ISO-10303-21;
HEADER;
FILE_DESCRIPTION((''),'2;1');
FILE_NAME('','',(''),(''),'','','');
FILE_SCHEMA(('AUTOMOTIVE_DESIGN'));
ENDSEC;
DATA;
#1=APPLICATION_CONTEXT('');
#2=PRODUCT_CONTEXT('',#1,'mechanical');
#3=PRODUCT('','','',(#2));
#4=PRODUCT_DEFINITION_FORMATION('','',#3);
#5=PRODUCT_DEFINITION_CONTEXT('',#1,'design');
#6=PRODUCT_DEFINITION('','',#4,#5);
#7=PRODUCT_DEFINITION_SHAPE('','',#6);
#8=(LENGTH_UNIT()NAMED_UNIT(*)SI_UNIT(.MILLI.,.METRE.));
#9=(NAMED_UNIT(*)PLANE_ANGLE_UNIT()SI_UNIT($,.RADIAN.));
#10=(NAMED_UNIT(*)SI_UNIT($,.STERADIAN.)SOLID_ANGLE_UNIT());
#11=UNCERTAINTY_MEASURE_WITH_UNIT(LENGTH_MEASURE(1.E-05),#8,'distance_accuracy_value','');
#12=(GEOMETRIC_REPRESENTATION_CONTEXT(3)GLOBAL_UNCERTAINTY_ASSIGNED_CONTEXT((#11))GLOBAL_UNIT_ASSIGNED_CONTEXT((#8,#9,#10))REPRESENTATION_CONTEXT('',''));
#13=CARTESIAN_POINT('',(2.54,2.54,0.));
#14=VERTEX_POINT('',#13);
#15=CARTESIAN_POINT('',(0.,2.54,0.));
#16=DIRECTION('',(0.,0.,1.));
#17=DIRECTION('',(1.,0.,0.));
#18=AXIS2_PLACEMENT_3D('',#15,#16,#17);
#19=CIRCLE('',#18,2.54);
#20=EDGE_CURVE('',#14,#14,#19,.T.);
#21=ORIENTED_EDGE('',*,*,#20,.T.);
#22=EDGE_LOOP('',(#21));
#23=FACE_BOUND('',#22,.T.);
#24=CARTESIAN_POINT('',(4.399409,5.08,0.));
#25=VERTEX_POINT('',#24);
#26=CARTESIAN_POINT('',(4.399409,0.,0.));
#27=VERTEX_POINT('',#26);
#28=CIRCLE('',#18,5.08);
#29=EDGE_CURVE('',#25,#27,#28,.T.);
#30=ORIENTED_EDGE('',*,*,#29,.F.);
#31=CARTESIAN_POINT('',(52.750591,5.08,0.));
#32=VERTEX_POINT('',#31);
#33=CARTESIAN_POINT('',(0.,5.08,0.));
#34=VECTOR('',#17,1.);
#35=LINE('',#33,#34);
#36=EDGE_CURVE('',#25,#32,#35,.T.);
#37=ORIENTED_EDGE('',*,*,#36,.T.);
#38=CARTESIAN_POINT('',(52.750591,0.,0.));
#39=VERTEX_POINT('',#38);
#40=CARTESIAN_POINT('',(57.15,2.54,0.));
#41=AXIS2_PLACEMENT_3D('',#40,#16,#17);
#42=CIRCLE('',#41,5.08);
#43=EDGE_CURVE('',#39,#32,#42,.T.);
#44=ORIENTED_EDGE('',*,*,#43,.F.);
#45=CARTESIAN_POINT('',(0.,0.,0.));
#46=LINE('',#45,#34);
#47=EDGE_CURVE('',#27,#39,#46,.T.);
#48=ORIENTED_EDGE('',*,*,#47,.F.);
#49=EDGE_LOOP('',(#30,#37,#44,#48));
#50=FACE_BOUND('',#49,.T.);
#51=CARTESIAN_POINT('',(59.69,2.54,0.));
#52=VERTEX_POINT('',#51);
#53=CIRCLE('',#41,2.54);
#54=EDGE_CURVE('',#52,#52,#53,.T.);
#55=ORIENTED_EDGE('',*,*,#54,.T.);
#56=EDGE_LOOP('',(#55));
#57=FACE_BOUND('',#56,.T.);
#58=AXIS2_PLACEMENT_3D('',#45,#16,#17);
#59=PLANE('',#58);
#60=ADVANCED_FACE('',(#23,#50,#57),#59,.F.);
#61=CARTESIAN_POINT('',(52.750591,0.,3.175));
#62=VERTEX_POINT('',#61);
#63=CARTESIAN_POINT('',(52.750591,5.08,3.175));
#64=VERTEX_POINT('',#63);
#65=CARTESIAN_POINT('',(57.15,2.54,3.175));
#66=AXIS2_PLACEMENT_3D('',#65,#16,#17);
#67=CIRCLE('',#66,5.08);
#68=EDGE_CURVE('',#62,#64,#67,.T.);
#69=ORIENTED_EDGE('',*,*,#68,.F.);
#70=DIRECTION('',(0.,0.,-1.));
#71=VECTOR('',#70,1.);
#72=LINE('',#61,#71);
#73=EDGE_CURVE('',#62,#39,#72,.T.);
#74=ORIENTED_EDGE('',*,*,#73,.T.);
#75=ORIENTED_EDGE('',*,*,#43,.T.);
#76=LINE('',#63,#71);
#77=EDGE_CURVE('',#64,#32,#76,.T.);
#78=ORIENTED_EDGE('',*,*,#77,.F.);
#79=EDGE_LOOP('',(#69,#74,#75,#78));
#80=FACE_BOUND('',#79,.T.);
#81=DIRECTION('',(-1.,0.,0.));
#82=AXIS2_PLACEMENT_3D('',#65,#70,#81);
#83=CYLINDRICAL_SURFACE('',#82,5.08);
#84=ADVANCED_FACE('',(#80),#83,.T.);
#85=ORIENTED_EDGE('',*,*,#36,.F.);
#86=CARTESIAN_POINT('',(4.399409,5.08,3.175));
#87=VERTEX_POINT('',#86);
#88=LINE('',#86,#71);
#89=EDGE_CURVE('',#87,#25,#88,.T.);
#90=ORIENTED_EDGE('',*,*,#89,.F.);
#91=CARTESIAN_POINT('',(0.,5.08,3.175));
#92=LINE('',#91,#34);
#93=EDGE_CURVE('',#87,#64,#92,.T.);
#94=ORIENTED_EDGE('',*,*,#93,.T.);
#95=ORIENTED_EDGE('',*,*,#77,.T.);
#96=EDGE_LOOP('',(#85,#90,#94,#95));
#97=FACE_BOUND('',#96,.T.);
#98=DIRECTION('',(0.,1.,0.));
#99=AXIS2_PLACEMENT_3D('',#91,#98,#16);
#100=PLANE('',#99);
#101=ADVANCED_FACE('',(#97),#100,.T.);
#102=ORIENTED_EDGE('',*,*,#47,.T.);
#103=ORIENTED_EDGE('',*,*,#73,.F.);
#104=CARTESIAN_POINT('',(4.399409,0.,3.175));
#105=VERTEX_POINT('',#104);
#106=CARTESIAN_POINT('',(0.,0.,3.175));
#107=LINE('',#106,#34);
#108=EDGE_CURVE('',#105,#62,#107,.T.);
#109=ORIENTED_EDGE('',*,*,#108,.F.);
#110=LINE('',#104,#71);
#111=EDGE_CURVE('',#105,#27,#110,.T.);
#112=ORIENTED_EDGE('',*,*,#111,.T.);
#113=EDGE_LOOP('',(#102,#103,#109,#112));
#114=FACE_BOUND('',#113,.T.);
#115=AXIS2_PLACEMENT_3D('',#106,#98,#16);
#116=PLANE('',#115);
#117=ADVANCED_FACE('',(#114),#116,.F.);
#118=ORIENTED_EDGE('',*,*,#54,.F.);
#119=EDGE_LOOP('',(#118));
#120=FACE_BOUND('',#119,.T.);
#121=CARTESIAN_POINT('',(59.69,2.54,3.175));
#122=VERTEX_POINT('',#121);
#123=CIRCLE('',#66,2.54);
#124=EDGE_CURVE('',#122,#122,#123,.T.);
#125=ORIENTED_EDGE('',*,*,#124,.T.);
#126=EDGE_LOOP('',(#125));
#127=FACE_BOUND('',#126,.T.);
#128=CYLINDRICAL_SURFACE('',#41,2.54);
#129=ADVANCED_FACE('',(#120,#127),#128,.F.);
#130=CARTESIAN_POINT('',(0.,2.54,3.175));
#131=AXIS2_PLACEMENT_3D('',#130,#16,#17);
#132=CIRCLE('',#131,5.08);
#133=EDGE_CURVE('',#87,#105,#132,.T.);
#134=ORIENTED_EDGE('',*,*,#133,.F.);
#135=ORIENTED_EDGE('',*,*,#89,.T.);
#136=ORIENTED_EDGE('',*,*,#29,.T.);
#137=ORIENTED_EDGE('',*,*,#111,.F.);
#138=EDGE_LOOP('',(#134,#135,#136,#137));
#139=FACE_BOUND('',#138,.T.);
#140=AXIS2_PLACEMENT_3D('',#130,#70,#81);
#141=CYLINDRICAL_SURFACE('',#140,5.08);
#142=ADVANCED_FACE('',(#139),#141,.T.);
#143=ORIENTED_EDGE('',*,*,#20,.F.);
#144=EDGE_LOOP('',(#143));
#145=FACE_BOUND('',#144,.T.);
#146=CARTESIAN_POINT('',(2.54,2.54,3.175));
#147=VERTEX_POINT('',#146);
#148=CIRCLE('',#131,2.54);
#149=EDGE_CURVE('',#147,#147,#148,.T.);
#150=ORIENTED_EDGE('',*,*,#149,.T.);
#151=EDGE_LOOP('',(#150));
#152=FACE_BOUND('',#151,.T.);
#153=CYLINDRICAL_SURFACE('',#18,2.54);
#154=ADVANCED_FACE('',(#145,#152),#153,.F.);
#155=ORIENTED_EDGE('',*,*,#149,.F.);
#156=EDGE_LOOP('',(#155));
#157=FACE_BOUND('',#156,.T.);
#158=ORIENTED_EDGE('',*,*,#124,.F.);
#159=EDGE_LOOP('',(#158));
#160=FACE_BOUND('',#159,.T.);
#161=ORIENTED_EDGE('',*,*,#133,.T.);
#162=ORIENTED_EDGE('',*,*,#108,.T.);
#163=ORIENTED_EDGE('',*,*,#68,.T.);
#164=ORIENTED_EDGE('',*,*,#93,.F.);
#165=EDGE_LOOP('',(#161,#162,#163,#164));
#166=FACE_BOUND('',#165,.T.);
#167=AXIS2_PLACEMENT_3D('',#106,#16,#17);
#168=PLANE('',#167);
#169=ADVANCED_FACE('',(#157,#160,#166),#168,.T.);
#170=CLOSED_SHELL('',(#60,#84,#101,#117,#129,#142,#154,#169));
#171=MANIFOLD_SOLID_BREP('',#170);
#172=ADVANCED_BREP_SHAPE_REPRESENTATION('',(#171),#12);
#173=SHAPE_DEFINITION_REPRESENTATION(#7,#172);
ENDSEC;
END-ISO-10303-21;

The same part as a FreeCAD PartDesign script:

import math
import FreeCAD as App
import Part
import Sketcher
from FreeCAD import Vector
Q = App.Units.Quantity

doc = App.newDocument("Part")
body = doc.addObject("PartDesign::Body", "Body")

# Sketch on XY plane
sketch1 = doc.addObject("Sketcher::SketchObject", "Sketch")
body.addObject(sketch1)
sketch1.AttachmentSupport = (doc.XY_Plane, [""])
sketch1.MapMode = "FlatFace"
sketch1.addGeometry(Part.LineSegment(Vector(4.399409, 0, 0), Vector(52.750591, 0, 0)), False)
sketch1.addGeometry(Part.ArcOfCircle(Part.Circle(Vector(57.15, 2.54, 0), Vector(0, 0, 1), 5.08), math.radians(-150), math.radians(0)), False)
sketch1.addGeometry(Part.ArcOfCircle(Part.Circle(Vector(57.15, 2.54, 0), Vector(0, 0, 1), 5.08), math.radians(0), math.radians(150)), False)
sketch1.addGeometry(Part.LineSegment(Vector(52.750591, 5.08, 0), Vector(4.399409, 5.08, 0)), False)
sketch1.addGeometry(Part.ArcOfCircle(Part.Circle(Vector(0, 2.54, 0), Vector(0, 0, 1), 5.08), math.radians(30), math.radians(330)), False)
sketch1.addConstraint(Sketcher.Constraint("Coincident", 0, 2, 1, 1))
sketch1.addConstraint(Sketcher.Constraint("Tangent", 1, 2, 2, 1))
sketch1.addConstraint(Sketcher.Constraint("Coincident", 2, 2, 3, 1))
sketch1.addConstraint(Sketcher.Constraint("Coincident", 3, 2, 4, 1))
sketch1.addConstraint(Sketcher.Constraint("Coincident", 4, 2, 0, 1))
sketch1.addConstraint(Sketcher.Constraint("Horizontal", 0))
sketch1.addConstraint(Sketcher.Constraint("Horizontal", 3))
sketch1.addConstraint(Sketcher.Constraint("Equal", 1, 2))
sketch1.addConstraint(Sketcher.Constraint("Equal", 2, 4))
sketch1.addConstraint(Sketcher.Constraint("PointOnObject", 4, 3, -2))
sketch1.addConstraint(Sketcher.Constraint("PointOnObject", 0, 2, -1))
sketch1.addConstraint(Sketcher.Constraint("Horizontal", 2, 3, 4, 3))
sketch1.addConstraint(Sketcher.Constraint("Horizontal", 4, 3, 1, 2))
sketch1.addConstraint(Sketcher.Constraint("Vertical", 0, 2, 2, 2))
sketch1.addConstraint(Sketcher.Constraint("Radius", 1, Q("0.2 in")))
sketch1.addConstraint(Sketcher.Constraint("DistanceY", -1, 1, 1, 3, Q("0.1 in")))
sketch1.addConstraint(Sketcher.Constraint("DistanceX", -1, 1, 1, 3, Q("2.25 in")))
pad1 = doc.addObject("PartDesign::Pad", "Pad")
body.addObject(pad1)
pad1.Profile = sketch1
pad1.Length = Q("0.125 in")

# Sketch on XY plane
sketch2 = doc.addObject("Sketcher::SketchObject", "Sketch001")
body.addObject(sketch2)
sketch2.AttachmentSupport = (doc.XY_Plane, [""])
sketch2.MapMode = "FlatFace"
sketch2.AttachmentOffset = App.Placement(Vector(0, 0, 0.125 * 25.4), App.Rotation())
sketch2.addGeometry(Part.Circle(Vector(0, 2.54, 0), Vector(0, 0, 1), 2.54), False)
sketch2.addGeometry(Part.Circle(Vector(57.15, 2.54, 0), Vector(0, 0, 1), 2.54), False)
sketch2.addConstraint(Sketcher.Constraint("Equal", 0, 1))
sketch2.addConstraint(Sketcher.Constraint("PointOnObject", 0, 3, -2))
sketch2.addConstraint(Sketcher.Constraint("Horizontal", 0, 3, 1, 3))
sketch2.addConstraint(Sketcher.Constraint("Diameter", 0, Q("0.2 in")))
sketch2.addConstraint(Sketcher.Constraint("DistanceY", -1, 1, 0, 3, Q("0.1 in")))
sketch2.addConstraint(Sketcher.Constraint("DistanceX", -1, 1, 1, 3, Q("2.25 in")))
pocket1 = doc.addObject("PartDesign::Pocket", "Pocket")
body.addObject(pocket1)
pocket1.Profile = sketch2
pocket1.Type = "ThroughAll"

doc.recompute()
